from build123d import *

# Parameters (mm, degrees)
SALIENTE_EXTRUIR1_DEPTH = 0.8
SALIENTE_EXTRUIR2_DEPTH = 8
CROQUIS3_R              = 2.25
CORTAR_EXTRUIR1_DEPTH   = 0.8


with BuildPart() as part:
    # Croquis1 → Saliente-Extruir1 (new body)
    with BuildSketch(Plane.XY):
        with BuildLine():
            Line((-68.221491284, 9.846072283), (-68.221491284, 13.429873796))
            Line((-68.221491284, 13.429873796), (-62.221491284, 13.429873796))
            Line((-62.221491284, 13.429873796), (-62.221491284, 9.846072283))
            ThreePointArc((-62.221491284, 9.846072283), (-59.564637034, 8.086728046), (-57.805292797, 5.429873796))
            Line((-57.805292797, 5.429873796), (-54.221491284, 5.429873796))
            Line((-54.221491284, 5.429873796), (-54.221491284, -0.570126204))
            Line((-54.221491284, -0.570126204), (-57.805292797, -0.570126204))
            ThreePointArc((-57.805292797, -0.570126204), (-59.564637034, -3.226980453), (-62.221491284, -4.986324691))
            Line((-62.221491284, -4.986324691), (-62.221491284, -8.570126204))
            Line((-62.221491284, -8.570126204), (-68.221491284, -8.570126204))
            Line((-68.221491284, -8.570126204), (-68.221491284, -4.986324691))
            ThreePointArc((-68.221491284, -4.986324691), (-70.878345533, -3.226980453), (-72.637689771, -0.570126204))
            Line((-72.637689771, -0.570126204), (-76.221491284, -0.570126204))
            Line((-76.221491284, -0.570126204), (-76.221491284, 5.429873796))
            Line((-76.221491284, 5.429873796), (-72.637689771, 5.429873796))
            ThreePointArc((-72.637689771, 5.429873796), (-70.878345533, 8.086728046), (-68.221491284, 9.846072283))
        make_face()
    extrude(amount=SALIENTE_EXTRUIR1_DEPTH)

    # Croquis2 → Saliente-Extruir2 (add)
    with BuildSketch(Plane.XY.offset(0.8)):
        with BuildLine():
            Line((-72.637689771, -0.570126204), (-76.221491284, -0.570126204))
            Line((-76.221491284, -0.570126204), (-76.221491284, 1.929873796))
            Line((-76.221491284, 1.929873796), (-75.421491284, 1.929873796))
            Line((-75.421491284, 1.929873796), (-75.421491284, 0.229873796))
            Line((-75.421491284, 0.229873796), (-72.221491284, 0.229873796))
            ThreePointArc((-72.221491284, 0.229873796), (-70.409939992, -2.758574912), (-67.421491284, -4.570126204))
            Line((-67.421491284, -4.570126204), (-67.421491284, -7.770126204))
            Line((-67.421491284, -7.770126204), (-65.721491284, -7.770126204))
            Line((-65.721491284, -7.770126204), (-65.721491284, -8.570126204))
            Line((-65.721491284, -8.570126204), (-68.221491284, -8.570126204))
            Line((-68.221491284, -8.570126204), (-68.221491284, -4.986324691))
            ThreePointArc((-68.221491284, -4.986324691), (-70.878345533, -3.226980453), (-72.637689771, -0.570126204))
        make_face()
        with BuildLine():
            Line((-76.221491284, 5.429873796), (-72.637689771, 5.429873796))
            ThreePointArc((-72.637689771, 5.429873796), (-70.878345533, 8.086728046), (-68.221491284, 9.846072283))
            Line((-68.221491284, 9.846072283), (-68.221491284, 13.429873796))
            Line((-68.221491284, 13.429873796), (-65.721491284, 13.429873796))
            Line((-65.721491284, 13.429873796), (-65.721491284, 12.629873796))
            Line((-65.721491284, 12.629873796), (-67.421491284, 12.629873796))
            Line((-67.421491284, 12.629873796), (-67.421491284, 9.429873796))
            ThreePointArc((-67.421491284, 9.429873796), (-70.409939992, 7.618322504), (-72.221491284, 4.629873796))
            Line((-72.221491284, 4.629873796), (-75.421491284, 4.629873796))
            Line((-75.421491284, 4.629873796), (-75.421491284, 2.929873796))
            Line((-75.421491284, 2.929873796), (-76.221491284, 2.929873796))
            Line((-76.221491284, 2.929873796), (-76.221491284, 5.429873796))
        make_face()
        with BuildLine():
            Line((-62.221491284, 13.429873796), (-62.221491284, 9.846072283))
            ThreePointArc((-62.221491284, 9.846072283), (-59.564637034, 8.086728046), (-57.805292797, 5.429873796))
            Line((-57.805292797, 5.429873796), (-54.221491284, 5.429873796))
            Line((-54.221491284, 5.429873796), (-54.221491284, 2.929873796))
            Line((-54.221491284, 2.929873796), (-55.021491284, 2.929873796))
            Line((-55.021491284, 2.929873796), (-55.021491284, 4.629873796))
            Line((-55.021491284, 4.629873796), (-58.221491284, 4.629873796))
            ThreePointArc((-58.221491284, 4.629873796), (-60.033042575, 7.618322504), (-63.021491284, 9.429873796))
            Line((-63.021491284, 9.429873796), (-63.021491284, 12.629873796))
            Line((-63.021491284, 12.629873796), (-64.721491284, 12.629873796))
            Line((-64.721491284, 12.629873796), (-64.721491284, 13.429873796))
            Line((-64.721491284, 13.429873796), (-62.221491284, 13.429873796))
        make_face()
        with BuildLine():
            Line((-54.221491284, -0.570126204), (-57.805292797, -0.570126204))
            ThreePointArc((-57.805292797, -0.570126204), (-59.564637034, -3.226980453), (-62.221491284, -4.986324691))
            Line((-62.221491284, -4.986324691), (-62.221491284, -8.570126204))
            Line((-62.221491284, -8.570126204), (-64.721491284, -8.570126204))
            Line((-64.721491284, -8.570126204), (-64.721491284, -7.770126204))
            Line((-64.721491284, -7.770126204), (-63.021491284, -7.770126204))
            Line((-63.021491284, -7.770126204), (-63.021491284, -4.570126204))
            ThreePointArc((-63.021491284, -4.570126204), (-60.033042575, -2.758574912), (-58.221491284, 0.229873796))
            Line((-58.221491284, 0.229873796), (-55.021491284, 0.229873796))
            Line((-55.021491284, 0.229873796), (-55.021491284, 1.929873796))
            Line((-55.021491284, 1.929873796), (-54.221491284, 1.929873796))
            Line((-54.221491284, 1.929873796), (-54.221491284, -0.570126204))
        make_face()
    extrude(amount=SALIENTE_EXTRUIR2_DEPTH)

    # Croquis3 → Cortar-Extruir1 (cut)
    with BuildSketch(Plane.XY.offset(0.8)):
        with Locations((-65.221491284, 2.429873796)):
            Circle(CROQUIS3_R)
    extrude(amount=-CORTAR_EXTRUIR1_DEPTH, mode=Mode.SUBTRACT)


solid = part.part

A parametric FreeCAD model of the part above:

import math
import FreeCAD as App
import Part
import Sketcher
Q = App.Units.Quantity

doc = App.newDocument("Part")
body = doc.addObject("PartDesign::Body", "Body")

# Sketch on XY plane
sketch1 = body.newObject("Sketcher::SketchObject", "Sketch")
sketch1.AttachmentSupport = (doc.getObject("XY_Plane"), [""])
sketch1.MapMode = "FlatFace"
sketch1.addGeometry([
    Part.LineSegment(App.Vector(-68.2, 13.4, 0), App.Vector(-68.2, 9.8, 0)),  # 0
    Part.ArcOfCircle(Part.Circle(App.Vector(-65.2, 2.4, 0), App.Vector(0, 0, 1), 8), math.radians(112), math.radians(158)),  # 1
    Part.LineSegment(App.Vector(-72.6, 5.4, 0), App.Vector(-76.2, 5.4, 0)),  # 2
    Part.LineSegment(App.Vector(-76.2, 5.4, 0), App.Vector(-76.2, -0.6, 0)),  # 3
    Part.LineSegment(App.Vector(-76.2, -0.6, 0), App.Vector(-72.6, -0.6, 0)),  # 4
    Part.ArcOfCircle(Part.Circle(App.Vector(-65.2, 2.4, 0), App.Vector(0, 0, 1), 8), math.radians(-158), math.radians(-112)),  # 5
    Part.LineSegment(App.Vector(-68.2, -5, 0), App.Vector(-68.2, -8.6, 0)),  # 6
    Part.LineSegment(App.Vector(-68.2, -8.6, 0), App.Vector(-62.2, -8.6, 0)),  # 7
    Part.LineSegment(App.Vector(-62.2, -8.6, 0), App.Vector(-62.2, -5, 0)),  # 8
    Part.ArcOfCircle(Part.Circle(App.Vector(-65.2, 2.4, 0), App.Vector(0, 0, 1), 8), math.radians(-68), math.radians(-22)),  # 9
    Part.LineSegment(App.Vector(-57.8, -0.6, 0), App.Vector(-54.2, -0.6, 0)),  # 10
    Part.LineSegment(App.Vector(-54.2, -0.6, 0), App.Vector(-54.2, 5.4, 0)),  # 11
    Part.LineSegment(App.Vector(-54.2, 5.4, 0), App.Vector(-57.8, 5.4, 0)),  # 12
    Part.ArcOfCircle(Part.Circle(App.Vector(-65.2, 2.4, 0), App.Vector(0, 0, 1), 8), math.radians(22), math.radians(68)),  # 13
    Part.LineSegment(App.Vector(-62.2, 9.8, 0), App.Vector(-62.2, 13.4, 0)),  # 14
    Part.LineSegment(App.Vector(-62.2, 13.4, 0), App.Vector(-68.2, 13.4, 0)),  # 15
], False)
sketch1.addConstraint([
    Sketcher.Constraint("Coincident", 0, 2, 1, 1),
    Sketcher.Constraint("Coincident", 1, 2, 2, 1),
    Sketcher.Constraint("Coincident", 2, 2, 3, 1),
    Sketcher.Constraint("Coincident", 3, 2, 4, 1),
    Sketcher.Constraint("Coincident", 4, 2, 5, 1),
    Sketcher.Constraint("Coincident", 5, 2, 6, 1),
    Sketcher.Constraint("Coincident", 6, 2, 7, 1),
    Sketcher.Constraint("Coincident", 7, 2, 8, 1),
    Sketcher.Constraint("Coincident", 8, 2, 9, 1),
    Sketcher.Constraint("Coincident", 9, 2, 10, 1),
    Sketcher.Constraint("Coincident", 10, 2, 11, 1),
    Sketcher.Constraint("Coincident", 11, 2, 12, 1),
    Sketcher.Constraint("Coincident", 12, 2, 13, 1),
    Sketcher.Constraint("Coincident", 13, 2, 14, 1),
    Sketcher.Constraint("Coincident", 14, 2, 15, 1),
    Sketcher.Constraint("Coincident", 15, 2, 0, 1),
    Sketcher.Constraint("Vertical", 0),
    Sketcher.Constraint("Horizontal", 2),
    Sketcher.Constraint("Vertical", 3),
    Sketcher.Constraint("Horizontal", 4),
    Sketcher.Constraint("Vertical", 6),
    Sketcher.Constraint("Horizontal", 7),
    Sketcher.Constraint("Vertical", 8),
    Sketcher.Constraint("Horizontal", 10),
    Sketcher.Constraint("Vertical", 11),
    Sketcher.Constraint("Horizontal", 12),
    Sketcher.Constraint("Vertical", 14),
    Sketcher.Constraint("Horizontal", 15),
    Sketcher.Constraint("Coincident", 5, 3, 1, 3),
    Sketcher.Constraint("Coincident", 9, 3, 1, 3),
    Sketcher.Constraint("Coincident", 13, 3, 1, 3),
    Sketcher.Constraint("Equal", 1, 5),
    Sketcher.Constraint("Equal", 5, 9),
    Sketcher.Constraint("Equal", 9, 13),
    Sketcher.Constraint("Horizontal", 5, 2, 8, 2),
    Sketcher.Constraint("Horizontal", 4, 2, 9, 2),
    Sketcher.Constraint("Horizontal", 2, 2, 11, 2),
    Sketcher.Constraint("Horizontal", 0, 2, 13, 2),
    Sketcher.Constraint("Vertical", 1, 2, 4, 2),
    Sketcher.Constraint("Vertical", 0, 2, 5, 2),
    Sketcher.Constraint("Equal", 4, 10),
    Sketcher.Constraint("Equal", 12, 0),
    Sketcher.Constraint("Equal", 15, 3),
    Sketcher.Constraint("Equal", 0, 6),
    Sketcher.Constraint("Radius", 1, Q("8 mm")),
    Sketcher.Constraint("DistanceX", 7, 1, 7, 2, Q("6 mm")),
    Sketcher.Constraint("DistanceX", 2, 2, 0, 2, Q("8 mm")),
    Sketcher.Constraint("DistanceX", 1, 3, -1, 1, Q("65.221491 mm")),
    Sketcher.Constraint("DistanceY", -1, 1, 1, 3, Q("2.429874 mm")),
])
pad1 = body.newObject("PartDesign::Pad", "Pad")
pad1.Profile = sketch1
pad1.Length = 0.8

# Sketch on XY plane
sketch2 = body.newObject("Sketcher::SketchObject", "Sketch001")
sketch2.AttachmentSupport = (doc.getObject("XY_Plane"), [""])
sketch2.MapMode = "FlatFace"
sketch2.AttachmentOffset = App.Placement(App.Vector(0, 0, 0.8), App.Rotation())
sketch2.addGeometry([
    Part.LineSegment(App.Vector(-76.2, -0.6, 0), App.Vector(-72.6, -0.6, 0)),  # 0
    Part.ArcOfCircle(Part.Circle(App.Vector(-65.2, 2.4, 0), App.Vector(0, 0, 1), 8), math.radians(-158), math.radians(-112)),  # 1
    Part.LineSegment(App.Vector(-68.2, -5, 0), App.Vector(-68.2, -8.6, 0)),  # 2
    Part.LineSegment(App.Vector(-68.2, -8.6, 0), App.Vector(-65.7, -8.6, 0)),  # 3
    Part.LineSegment(App.Vector(-65.7, -8.6, 0), App.Vector(-65.7, -7.8, 0)),  # 4
    Part.LineSegment(App.Vector(-65.7, -7.8, 0), App.Vector(-67.4, -7.8, 0)),  # 5
    Part.LineSegment(App.Vector(-67.4, -7.8, 0), App.Vector(-67.4, -4.6, 0)),  # 6
    Part.ArcOfCircle(Part.Circle(App.Vector(-65.2, 2.4, 0), App.Vector(0, 0, 1), 7.3), math.radians(-163), math.radians(-107)),  # 7
    Part.LineSegment(App.Vector(-72.2, 0.2, 0), App.Vector(-75.4, 0.2, 0)),  # 8
    Part.LineSegment(App.Vector(-75.4, 0.2, 0), App.Vector(-75.4, 1.9, 0)),  # 9
    Part.LineSegment(App.Vector(-75.4, 1.9, 0), App.Vector(-76.2, 1.9, 0)),  # 10
    Part.LineSegment(App.Vector(-76.2, 1.9, 0), App.Vector(-76.2, -0.6, 0)),  # 11
    Part.LineSegment(App.Vector(-72.6, 5.4, 0), App.Vector(-76.2, 5.4, 0)),  # 12
    Part.LineSegment(App.Vector(-76.2, 5.4, 0), App.Vector(-76.2, 2.9, 0)),  # 13
    Part.LineSegment(App.Vector(-76.2, 2.9, 0), App.Vector(-75.4, 2.9, 0)),  # 14
    Part.LineSegment(App.Vector(-75.4, 2.9, 0), App.Vector(-75.4, 4.6, 0)),  # 15
    Part.LineSegment(App.Vector(-75.4, 4.6, 0), App.Vector(-72.2, 4.6, 0)),  # 16
    Part.ArcOfCircle(Part.Circle(App.Vector(-65.2, 2.4, 0), App.Vector(0, 0, 1), 7.3), math.radians(107), math.radians(163)),  # 17
    Part.LineSegment(App.Vector(-67.4, 9.4, 0), App.Vector(-67.4, 12.6, 0)),  # 18
    Part.LineSegment(App.Vector(-67.4, 12.6, 0), App.Vector(-65.7, 12.6, 0)),  # 19
    Part.LineSegment(App.Vector(-65.7, 12.6, 0), App.Vector(-65.7, 13.4, 0)),  # 20
    Part.LineSegment(App.Vector(-65.7, 13.4, 0), App.Vector(-68.2, 13.4, 0)),  # 21
    Part.LineSegment(App.Vector(-68.2, 13.4, 0), App.Vector(-68.2, 9.8, 0)),  # 22
    Part.ArcOfCircle(Part.Circle(App.Vector(-65.2, 2.4, 0), App.Vector(0, 0, 1), 8), math.radians(112), math.radians(158)),  # 23
    Part.LineSegment(App.Vector(-62.2, 9.8, 0), App.Vector(-62.2, 13.4, 0)),  # 24
    Part.LineSegment(App.Vector(-62.2, 13.4, 0), App.Vector(-64.7, 13.4, 0)),  # 25
    Part.LineSegment(App.Vector(-64.7, 13.4, 0), App.Vector(-64.7, 12.6, 0)),  # 26
    Part.LineSegment(App.Vector(-64.7, 12.6, 0), App.Vector(-63, 12.6, 0)),  # 27
    Part.LineSegment(App.Vector(-63, 12.6, 0), App.Vector(-63, 9.4, 0)),  # 28
    Part.ArcOfCircle(Part.Circle(App.Vector(-65.2, 2.4, 0), App.Vector(0, 0, 1), 7.3), math.radians(17), math.radians(73)),  # 29
    Part.LineSegment(App.Vector(-58.2, 4.6, 0), App.Vector(-55, 4.6, 0)),  # 30
    Part.LineSegment(App.Vector(-55, 4.6, 0), App.Vector(-55, 2.9, 0)),  # 31
    Part.LineSegment(App.Vector(-55, 2.9, 0), App.Vector(-54.2, 2.9, 0)),  # 32
    Part.LineSegment(App.Vector(-54.2, 2.9, 0), App.Vector(-54.2, 5.4, 0)),  # 33
    Part.LineSegment(App.Vector(-54.2, 5.4, 0), App.Vector(-57.8, 5.4, 0)),  # 34
    Part.ArcOfCircle(Part.Circle(App.Vector(-65.2, 2.4, 0), App.Vector(0, 0, 1), 8), math.radians(22), math.radians(68)),  # 35
    Part.LineSegment(App.Vector(-57.8, -0.6, 0), App.Vector(-54.2, -0.6, 0)),  # 36
    Part.LineSegment(App.Vector(-54.2, -0.6, 0), App.Vector(-54.2, 1.9, 0)),  # 37
    Part.LineSegment(App.Vector(-54.2, 1.9, 0), App.Vector(-55, 1.9, 0)),  # 38
    Part.LineSegment(App.Vector(-55, 1.9, 0), App.Vector(-55, 0.2, 0)),  # 39
    Part.LineSegment(App.Vector(-55, 0.2, 0), App.Vector(-58.2, 0.2, 0)),  # 40
    Part.ArcOfCircle(Part.Circle(App.Vector(-65.2, 2.4, 0), App.Vector(0, 0, 1), 7.3), math.radians(-73), math.radians(-17)),  # 41
    Part.LineSegment(App.Vector(-63, -4.6, 0), App.Vector(-63, -7.8, 0)),  # 42
    Part.LineSegment(App.Vector(-63, -7.8, 0), App.Vector(-64.7, -7.8, 0)),  # 43
    Part.LineSegment(App.Vector(-64.7, -7.8, 0), App.Vector(-64.7, -8.6, 0)),  # 44
    Part.LineSegment(App.Vector(-64.7, -8.6, 0), App.Vector(-62.2, -8.6, 0)),  # 45
    Part.LineSegment(App.Vector(-62.2, -8.6, 0), App.Vector(-62.2, -5, 0)),  # 46
    Part.ArcOfCircle(Part.Circle(App.Vector(-65.2, 2.4, 0), App.Vector(0, 0, 1), 8), math.radians(-68), math.radians(-22)),  # 47
], False)
sketch2.addConstraint([
    Sketcher.Constraint("Coincident", 0, 2, 1, 1),
    Sketcher.Constraint("Coincident", 1, 2, 2, 1),
    Sketcher.Constraint("Coincident", 2, 2, 3, 1),
    Sketcher.Constraint("Coincident", 3, 2, 4, 1),
    Sketcher.Constraint("Coincident", 4, 2, 5, 1),
    Sketcher.Constraint("Coincident", 5, 2, 6, 1),
    Sketcher.Constraint("Coincident", 6, 2, 7, 2),
    Sketcher.Constraint("Coincident", 7, 1, 8, 1),
    Sketcher.Constraint("Coincident", 8, 2, 9, 1),
    Sketcher.Constraint("Coincident", 9, 2, 10, 1),
    Sketcher.Constraint("Coincident", 10, 2, 11, 1),
    Sketcher.Constraint("Coincident", 11, 2, 0, 1),
    Sketcher.Constraint("Coincident", 12, 2, 13, 1),
    Sketcher.Constraint("Coincident", 13, 2, 14, 1),
    Sketcher.Constraint("Coincident", 14, 2, 15, 1),
    Sketcher.Constraint("Coincident", 15, 2, 16, 1),
    Sketcher.Constraint("Coincident", 16, 2, 17, 2),
    Sketcher.Constraint("Coincident", 17, 1, 18, 1),
    Sketcher.Constraint("Coincident", 18, 2, 19, 1),
    Sketcher.Constraint("Coincident", 19, 2, 20, 1),
    Sketcher.Constraint("Coincident", 20, 2, 21, 1),
    Sketcher.Constraint("Coincident", 21, 2, 22, 1),
    Sketcher.Constraint("Coincident", 22, 2, 23, 1),
    Sketcher.Constraint("Coincident", 23, 2, 12, 1),
    Sketcher.Constraint("Coincident", 24, 2, 25, 1),
    Sketcher.Constraint("Coincident", 25, 2, 26, 1),
    Sketcher.Constraint("Coincident", 26, 2, 27, 1),
    Sketcher.Constraint("Coincident", 27, 2, 28, 1),
    Sketcher.Constraint("Coincident", 28, 2, 29, 2),
    Sketcher.Constraint("Coincident", 29, 1, 30, 1),
    Sketcher.Constraint("Coincident", 30, 2, 31, 1),
    Sketcher.Constraint("Coincident", 31, 2, 32, 1),
    Sketcher.Constraint("Coincident", 32, 2, 33, 1),
    Sketcher.Constraint("Coincident", 33, 2, 34, 1),
    Sketcher.Constraint("Coincident", 34, 2, 35, 1),
    Sketcher.Constraint("Coincident", 35, 2, 24, 1),
    Sketcher.Constraint("Coincident", 36, 2, 37, 1),
    Sketcher.Constraint("Coincident", 37, 2, 38, 1),
    Sketcher.Constraint("Coincident", 38, 2, 39, 1),
    Sketcher.Constraint("Coincident", 39, 2, 40, 1),
    Sketcher.Constraint("Coincident", 40, 2, 41, 2),
    Sketcher.Constraint("Coincident", 41, 1, 42, 1),
    Sketcher.Constraint("Coincident", 42, 2, 43, 1),
    Sketcher.Constraint("Coincident", 43, 2, 44, 1),
    Sketcher.Constraint("Coincident", 44, 2, 45, 1),
    Sketcher.Constraint("Coincident", 45, 2, 46, 1),
    Sketcher.Constraint("Coincident", 46, 2, 47, 1),
    Sketcher.Constraint("Coincident", 47, 2, 36, 1),
    Sketcher.Constraint("Horizontal", 0),
    Sketcher.Constraint("Vertical", 2),
    Sketcher.Constraint("Horizontal", 3),
    Sketcher.Constraint("Vertical", 4),
    Sketcher.Constraint("Horizontal", 5),
    Sketcher.Constraint("Vertical", 6),
    Sketcher.Constraint("Horizontal", 8),
    Sketcher.Constraint("Vertical", 9),
    Sketcher.Constraint("Horizontal", 10),
    Sketcher.Constraint("Vertical", 11),
    Sketcher.Constraint("Horizontal", 12),
    Sketcher.Constraint("Vertical", 13),
    Sketcher.Constraint("Horizontal", 14),
    Sketcher.Constraint("Vertical", 15),
    Sketcher.Constraint("Horizontal", 16),
    Sketcher.Constraint("Vertical", 18),
    Sketcher.Constraint("Horizontal", 19),
    Sketcher.Constraint("Vertical", 20),
    Sketcher.Constraint("Horizontal", 21),
    Sketcher.Constraint("Vertical", 22),
    Sketcher.Constraint("Vertical", 24),
    Sketcher.Constraint("Horizontal", 25),
    Sketcher.Constraint("Vertical", 26),
    Sketcher.Constraint("Horizontal", 27),
    Sketcher.Constraint("Vertical", 28),
    Sketcher.Constraint("Horizontal", 30),
    Sketcher.Constraint("Vertical", 31),
    Sketcher.Constraint("Horizontal", 32),
    Sketcher.Constraint("Vertical", 33),
    Sketcher.Constraint("Horizontal", 34),
    Sketcher.Constraint("Horizontal", 36),
    Sketcher.Constraint("Vertical", 37),
    Sketcher.Constraint("Horizontal", 38),
    Sketcher.Constraint("Vertical", 39),
    Sketcher.Constraint("Horizontal", 40),
    Sketcher.Constraint("Vertical", 42),
    Sketcher.Constraint("Horizontal", 43),
    Sketcher.Constraint("Vertical", 44),
    Sketcher.Constraint("Horizontal", 45),
    Sketcher.Constraint("Vertical", 46),
    Sketcher.Constraint("Coincident", 7, 3, 1, 3),
    Sketcher.Constraint("Coincident", 17, 3, 1, 3),
    Sketcher.Constraint("Coincident", 23, 3, 1, 3),
    Sketcher.Constraint("Coincident", 29, 3, 1, 3),
    Sketcher.Constraint("Coincident", 35, 3, 1, 3),
    Sketcher.Constraint("Coincident", 41, 3, 1, 3),
    Sketcher.Constraint("Coincident", 47, 3, 1, 3),
    Sketcher.Constraint("Equal", 7, 17),
    Sketcher.Constraint("Equal", 1, 23),
    Sketcher.Constraint("Equal", 17, 29),
    Sketcher.Constraint("Equal", 23, 35),
    Sketcher.Constraint("Equal", 29, 41),
    Sketcher.Constraint("Equal", 35, 47),
    Sketcher.Constraint("Horizontal", 21, 2, 24, 2),
    Sketcher.Constraint("Horizontal", 19, 2, 26, 2),
    Sketcher.Constraint("Horizontal", 17, 1, 28, 2),
    Sketcher.Constraint("Horizontal", 16, 2, 29, 1),
    Sketcher.Constraint("Horizontal", 14, 2, 31, 2),
    Sketcher.Constraint("Horizontal", 23, 2, 33, 2),
    Sketcher.Constraint("Horizontal", 22, 2, 35, 2),
    Sketcher.Constraint("Horizontal", 11, 2, 36, 2),
    Sketcher.Constraint("Horizontal", 10, 2, 37, 2),
    Sketcher.Constraint("Horizontal", 8, 2, 39, 2),
    Sketcher.Constraint("Horizontal", 6, 2, 41, 1),
    Sketcher.Constraint("Horizontal", 5, 2, 42, 2),
    Sketcher.Constraint("Horizontal", 3, 2, 44, 2),
    Sketcher.Constraint("Horizontal", 1, 2, 46, 2),
    Sketcher.Constraint("Vertical", 11, 2, 12, 2),
    Sketcher.Constraint("Vertical", 9, 2, 14, 2),
    Sketcher.Constraint("Vertical", 7, 1, 16, 2),
    Sketcher.Constraint("Vertical", 6, 2, 17, 1),
    Sketcher.Constraint("Vertical", 4, 2, 19, 2),
    Sketcher.Constraint("Vertical", 2, 2, 21, 2),
    Sketcher.Constraint("Vertical", 0, 2, 23, 2),
    Sketcher.Constraint("Vertical", 33, 2, 36, 2),
    Sketcher.Constraint("Vertical", 31, 2, 38, 2),
    Sketcher.Constraint("Vertical", 26, 2, 43, 2),
    Sketcher.Constraint("Equal", 21, 25),
    Sketcher.Constraint("Equal", 16, 30),
    Sketcher.Constraint("Equal", 14, 32),
    Sketcher.Constraint("Equal", 36, 2),
    Sketcher.Constraint("Equal", 38, 4),
    Sketcher.Constraint("Equal", 40, 6),
    Sketcher.Constraint("Equal", 43, 9),
    Sketcher.Constraint("Equal", 45, 11),
    Sketcher.Constraint("Equal", 11, 13),
    Sketcher.Constraint("Equal", 6, 18),
    Sketcher.Constraint("Equal", 4, 20),
    Sketcher.Constraint("Radius", 1, Q("8 mm")),
    Sketcher.Constraint("DistanceX", 3, 1, 3, 2, Q("2.5 mm")),
    Sketcher.Constraint("DistanceX", 5, 2, 5, 1, Q("1.7 mm")),
    Sketcher.Constraint("DistanceX", 8, 2, 8, 1, Q("3.2 mm")),
    Sketcher.Constraint("DistanceX", 10, 2, 10, 1, Q("0.8 mm")),
    Sketcher.Constraint("DistanceY", 0, 2, 23, 3, Q("3 mm")),
    Sketcher.Constraint("DistanceY", 2, 2, 0, 2, Q("8 mm")),
    Sketcher.Constraint("DistanceX", 1, 3, -1, 1, Q("65.221491 mm")),
    Sketcher.Constraint("DistanceY", -1, 1, 1, 3, Q("2.429874 mm")),
])
pad2 = body.newObject("PartDesign::Pad", "Pad001")
pad2.Profile = sketch2
pad2.Length = 8

# Sketch on XY plane
sketch3 = body.newObject("Sketcher::SketchObject", "Sketch002")
sketch3.AttachmentSupport = (doc.getObject("XY_Plane"), [""])
sketch3.MapMode = "FlatFace"
sketch3.AttachmentOffset = App.Placement(App.Vector(0, 0, 0.8), App.Rotation())
sketch3.addGeometry(Part.Circle(App.Vector(-65.2, 2.4, 0), App.Vector(0, 0, 1), 2.2), False)
sketch3.addConstraint([
    Sketcher.Constraint("Diameter", 0, Q("4.5 mm")),
    Sketcher.Constraint("DistanceX", 0, 3, -1, 1, Q("65.221491 mm")),
    Sketcher.Constraint("DistanceY", -1, 1, 0, 3, Q("2.429874 mm")),
])
pocket1 = body.newObject("PartDesign::Pocket", "Pocket")
pocket1.Profile = sketch3
pocket1.Length = 0.8

doc.recompute()
